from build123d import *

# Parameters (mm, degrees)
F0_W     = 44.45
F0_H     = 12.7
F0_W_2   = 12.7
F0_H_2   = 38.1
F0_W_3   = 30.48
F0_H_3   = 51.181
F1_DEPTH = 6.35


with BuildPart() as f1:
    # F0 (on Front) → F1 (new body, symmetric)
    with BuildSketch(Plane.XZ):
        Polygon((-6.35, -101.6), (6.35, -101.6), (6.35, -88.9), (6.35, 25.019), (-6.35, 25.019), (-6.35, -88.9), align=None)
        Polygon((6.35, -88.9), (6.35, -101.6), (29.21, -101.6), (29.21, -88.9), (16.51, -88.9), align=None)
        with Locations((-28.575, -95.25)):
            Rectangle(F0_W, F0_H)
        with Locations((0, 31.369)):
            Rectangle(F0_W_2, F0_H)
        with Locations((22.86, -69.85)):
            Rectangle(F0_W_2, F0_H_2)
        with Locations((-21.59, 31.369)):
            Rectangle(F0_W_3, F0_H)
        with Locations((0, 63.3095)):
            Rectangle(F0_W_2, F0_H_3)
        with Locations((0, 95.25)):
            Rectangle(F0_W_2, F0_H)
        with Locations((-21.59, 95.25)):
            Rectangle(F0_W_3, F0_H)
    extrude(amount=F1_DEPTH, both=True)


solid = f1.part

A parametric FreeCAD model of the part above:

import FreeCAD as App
import Part
import Sketcher
Q = App.Units.Quantity


def add_polygon(sketch, points):
    """Adds a closed chain of lines whose ends are joined by coincident constraints."""
    first, n = sketch.GeometryCount, len(points)
    for a, b in zip(points, points[1:] + points[:1]):
        sketch.addGeometry(Part.LineSegment(App.Vector(*a, 0), App.Vector(*b, 0)), False)
    for i in range(n):
        sketch.addConstraint(Sketcher.Constraint("Coincident", first + i, 2, first + (i + 1) % n, 1))

doc = App.newDocument("Part")
body = doc.addObject("PartDesign::Body", "Body")

sketch1 = doc.addObject("Sketcher::SketchObject", "Sketch")
body.addObject(sketch1)
sketch1.AttachmentSupport = (doc.XZ_Plane, [""])
sketch1.MapMode = "FlatFace"
add_polygon(sketch1, [(-50.8, -101.6), (29.21, -101.6), (29.21, -50.8), (16.51, -50.8), (16.51, -88.9), (6.35, -88.9), (6.35, 101.6), (-36.83, 101.6), (-36.83, 88.9), (-6.35, 88.9), (-6.35, 37.719), (-36.83, 37.719), (-36.83, 25.019), (-6.35, 25.019), (-6.35, -88.9), (-50.8, -88.9)])
sketch1.addConstraint([
    Sketcher.Constraint("Horizontal", 0),
    Sketcher.Constraint("Vertical", 1),
    Sketcher.Constraint("Horizontal", 2),
    Sketcher.Constraint("Vertical", 3),
    Sketcher.Constraint("Horizontal", 4),
    Sketcher.Constraint("Vertical", 5),
    Sketcher.Constraint("Horizontal", 6),
    Sketcher.Constraint("Vertical", 7),
    Sketcher.Constraint("Horizontal", 8),
    Sketcher.Constraint("Vertical", 9),
    Sketcher.Constraint("Horizontal", 10),
    Sketcher.Constraint("Vertical", 11),
    Sketcher.Constraint("Horizontal", 12),
    Sketcher.Constraint("Vertical", 13),
    Sketcher.Constraint("Horizontal", 14),
    Sketcher.Constraint("Vertical", 15),
    Sketcher.Constraint("Symmetric", 4, 2, 8, 2, -1, 1),
    Sketcher.Constraint("Symmetric", 4, 2, 13, 2, -2),
    Sketcher.Constraint("Vertical", 7, 2, 10, 2),
    Sketcher.Constraint("Equal", 2, 7),
    Sketcher.Constraint("Equal", 7, 11),
    Sketcher.Constraint("Equal", 11, 15),
    Sketcher.Constraint("DistanceY", 1, 1, 1, 2, Q("2 in")),
    Sketcher.Constraint("DistanceX", 2, 2, 2, 1, Q("0.5 in")),
    Sketcher.Constraint("DistanceX", 4, 2, 4, 1, Q("0.4 in")),
    Sketcher.Constraint("DistanceX", 6, 2, 6, 1, Q("1.7 in")),
    Sketcher.Constraint("DistanceX", 8, 1, 8, 2, Q("1.2 in")),
    Sketcher.Constraint("DistanceY", 5, 1, 5, 2, Q("7.5 in")),
    Sketcher.Constraint("DistanceX", 14, 2, -1, 1, Q("2 in")),
    Sketcher.Constraint("DistanceY", 9, 2, 9, 1, Q("2.015 in")),
])
pad1 = doc.addObject("PartDesign::Pad", "Pad")
body.addObject(pad1)
pad1.Profile = sketch1
pad1.Length = Q("0.5 in")
pad1.Midplane = True

doc.recompute()
